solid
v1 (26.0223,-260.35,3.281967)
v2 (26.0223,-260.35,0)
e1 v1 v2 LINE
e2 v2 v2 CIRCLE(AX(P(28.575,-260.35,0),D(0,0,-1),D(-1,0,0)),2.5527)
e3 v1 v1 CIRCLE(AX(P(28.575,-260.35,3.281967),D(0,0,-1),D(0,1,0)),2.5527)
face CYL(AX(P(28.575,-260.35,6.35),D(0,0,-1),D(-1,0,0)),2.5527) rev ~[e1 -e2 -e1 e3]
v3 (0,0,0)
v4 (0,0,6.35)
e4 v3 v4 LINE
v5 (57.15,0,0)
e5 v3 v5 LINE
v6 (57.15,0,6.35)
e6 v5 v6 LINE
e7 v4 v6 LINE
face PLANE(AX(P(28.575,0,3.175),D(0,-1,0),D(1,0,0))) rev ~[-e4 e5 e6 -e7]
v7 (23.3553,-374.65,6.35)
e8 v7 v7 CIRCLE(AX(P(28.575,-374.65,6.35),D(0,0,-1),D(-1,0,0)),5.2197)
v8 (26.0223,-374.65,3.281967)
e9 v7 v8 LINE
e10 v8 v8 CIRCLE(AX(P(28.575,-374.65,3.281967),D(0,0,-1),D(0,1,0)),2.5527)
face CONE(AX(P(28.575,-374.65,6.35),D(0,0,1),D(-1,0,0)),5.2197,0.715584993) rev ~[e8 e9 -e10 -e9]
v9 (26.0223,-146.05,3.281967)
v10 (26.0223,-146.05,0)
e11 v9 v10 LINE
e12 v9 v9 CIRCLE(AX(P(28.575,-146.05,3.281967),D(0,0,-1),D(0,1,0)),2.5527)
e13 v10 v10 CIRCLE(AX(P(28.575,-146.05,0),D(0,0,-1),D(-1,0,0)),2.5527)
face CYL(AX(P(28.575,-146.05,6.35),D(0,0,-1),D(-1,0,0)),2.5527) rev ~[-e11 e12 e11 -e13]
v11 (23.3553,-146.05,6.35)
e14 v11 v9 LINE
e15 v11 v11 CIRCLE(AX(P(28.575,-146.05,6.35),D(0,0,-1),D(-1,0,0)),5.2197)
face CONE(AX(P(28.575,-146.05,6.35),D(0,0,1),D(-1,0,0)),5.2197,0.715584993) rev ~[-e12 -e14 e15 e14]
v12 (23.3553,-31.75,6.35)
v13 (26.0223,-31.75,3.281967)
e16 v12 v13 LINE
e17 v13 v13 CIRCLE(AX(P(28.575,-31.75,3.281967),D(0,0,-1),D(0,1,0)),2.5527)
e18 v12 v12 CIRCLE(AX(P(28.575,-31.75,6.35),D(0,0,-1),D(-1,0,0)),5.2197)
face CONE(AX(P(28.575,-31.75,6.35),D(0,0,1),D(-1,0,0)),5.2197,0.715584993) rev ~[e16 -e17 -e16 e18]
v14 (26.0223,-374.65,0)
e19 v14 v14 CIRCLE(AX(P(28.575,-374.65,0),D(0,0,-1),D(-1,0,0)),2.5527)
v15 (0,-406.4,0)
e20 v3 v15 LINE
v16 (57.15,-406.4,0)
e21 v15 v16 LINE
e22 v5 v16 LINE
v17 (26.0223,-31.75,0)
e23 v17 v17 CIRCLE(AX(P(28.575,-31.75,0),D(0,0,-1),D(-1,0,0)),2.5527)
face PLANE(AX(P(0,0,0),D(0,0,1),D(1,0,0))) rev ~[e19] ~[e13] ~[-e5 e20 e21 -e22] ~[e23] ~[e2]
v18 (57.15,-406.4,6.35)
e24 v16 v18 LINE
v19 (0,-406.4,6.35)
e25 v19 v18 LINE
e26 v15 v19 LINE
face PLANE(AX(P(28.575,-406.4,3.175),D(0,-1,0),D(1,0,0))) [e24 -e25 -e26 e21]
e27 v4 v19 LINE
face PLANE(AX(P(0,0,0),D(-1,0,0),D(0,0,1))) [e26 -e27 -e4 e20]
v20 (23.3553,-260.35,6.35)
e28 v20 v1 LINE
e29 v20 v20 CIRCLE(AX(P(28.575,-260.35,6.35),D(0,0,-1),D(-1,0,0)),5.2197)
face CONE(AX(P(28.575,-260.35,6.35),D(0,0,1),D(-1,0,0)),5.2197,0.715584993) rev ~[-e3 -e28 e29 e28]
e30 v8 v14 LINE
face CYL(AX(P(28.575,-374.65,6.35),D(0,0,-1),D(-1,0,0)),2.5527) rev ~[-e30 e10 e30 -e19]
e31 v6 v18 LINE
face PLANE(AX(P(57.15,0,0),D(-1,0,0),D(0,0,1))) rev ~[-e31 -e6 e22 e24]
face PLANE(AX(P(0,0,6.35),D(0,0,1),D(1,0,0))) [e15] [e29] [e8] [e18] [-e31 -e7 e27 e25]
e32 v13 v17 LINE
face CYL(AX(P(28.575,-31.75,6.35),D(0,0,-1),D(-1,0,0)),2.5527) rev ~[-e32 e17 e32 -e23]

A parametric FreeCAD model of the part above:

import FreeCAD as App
import Part
import Sketcher
from FreeCAD import Vector
Q = App.Units.Quantity


def add_polygon(sketch, points):
    """Adds a closed chain of lines whose ends are joined by coincident constraints."""
    first, n = sketch.GeometryCount, len(points)
    for a, b in zip(points, points[1:] + points[:1]):
        sketch.addGeometry(Part.LineSegment(App.Vector(*a, 0), App.Vector(*b, 0)), False)
    for i in range(n):
        sketch.addConstraint(Sketcher.Constraint("Coincident", first + i, 2, first + (i + 1) % n, 1))

doc = App.newDocument("Part")
body = doc.addObject("PartDesign::Body", "Body")

# Sketch on XZ plane
sketch1 = body.newObject("Sketcher::SketchObject", "Sketch")
sketch1.AttachmentSupport = (doc.getObject("XZ_Plane"), [""])
sketch1.MapMode = "FlatFace"
add_polygon(sketch1, [(0, 6), (0, 0), (57, 0), (57, 6)])  # lines 0-3
sketch1.addConstraint([
    Sketcher.Constraint("Vertical", 0),
    Sketcher.Constraint("Horizontal", 1),
    Sketcher.Constraint("Vertical", 2),
    Sketcher.Constraint("Horizontal", 3),
    Sketcher.Constraint("Coincident", 0, 2, -1, 1),
    Sketcher.Constraint("DistanceX", 1, 1, 1, 2, Q("2.25 in")),
    Sketcher.Constraint("DistanceY", 0, 2, 0, 1, Q("0.25 in")),
])
pad1 = body.newObject("PartDesign::Pad", "Pad")
pad1.Profile = sketch1
pad1.Length = Q("16 in")

# Sketch on XY plane
sketch2 = body.newObject("Sketcher::SketchObject", "Sketch001")
sketch2.AttachmentSupport = (doc.getObject("XY_Plane"), [""])
sketch2.MapMode = "FlatFace"
sketch2.AttachmentOffset = App.Placement(Vector(0, 0, 0.25 * 25.4), App.Rotation())
sketch2.addGeometry([
    Part.Circle(Vector(28.6, -374.6, 0), Vector(0, 0, 1), 2.6),
    Part.Circle(Vector(28.6, -260.4, 0), Vector(0, 0, 1), 2.6),
    Part.Circle(Vector(28.6, -146.1, 0), Vector(0, 0, 1), 2.6),
    Part.Circle(Vector(28.6, -31.8, 0), Vector(0, 0, 1), 2.6),
], False)
sketch2.addConstraint([
    Sketcher.Constraint("Equal", 0, 1),
    Sketcher.Constraint("Equal", 1, 2),
    Sketcher.Constraint("Equal", 2, 3),
    Sketcher.Constraint("Vertical", 0, 3, 1, 3),
    Sketcher.Constraint("Vertical", 1, 3, 2, 3),
    Sketcher.Constraint("Vertical", 2, 3, 3, 3),
    Sketcher.Constraint("Diameter", 0, Q("0.201 in")),
    Sketcher.Constraint("DistanceY", 0, 3, 2, 3, Q("9 in")),
    Sketcher.Constraint("DistanceY", 1, 3, 3, 3, Q("9 in")),
    Sketcher.Constraint("DistanceY", 0, 3, 1, 3, Q("4.5 in")),
    Sketcher.Constraint("DistanceY", 0, 3, -1, 1, Q("14.75 in")),
    Sketcher.Constraint("DistanceX", -1, 1, 0, 3, Q("1.125 in")),
])
doc.recompute()
hole = body.newObject("PartDesign::Hole", "Hole")
hole.Profile = sketch2
hole.ThreadType = "None"
hole.Diameter = Q("0.201 in")
hole.DepthType = "Dimension"
hole.Depth = Q("0.752 in")
hole.DrillPoint = "Angled"
hole.DrillPointAngle = 118
hole.HoleCutType = "Countersink"
hole.HoleCutDiameter = Q("0.411 in")
hole.HoleCutCountersinkAngle = 82

doc.recompute()
